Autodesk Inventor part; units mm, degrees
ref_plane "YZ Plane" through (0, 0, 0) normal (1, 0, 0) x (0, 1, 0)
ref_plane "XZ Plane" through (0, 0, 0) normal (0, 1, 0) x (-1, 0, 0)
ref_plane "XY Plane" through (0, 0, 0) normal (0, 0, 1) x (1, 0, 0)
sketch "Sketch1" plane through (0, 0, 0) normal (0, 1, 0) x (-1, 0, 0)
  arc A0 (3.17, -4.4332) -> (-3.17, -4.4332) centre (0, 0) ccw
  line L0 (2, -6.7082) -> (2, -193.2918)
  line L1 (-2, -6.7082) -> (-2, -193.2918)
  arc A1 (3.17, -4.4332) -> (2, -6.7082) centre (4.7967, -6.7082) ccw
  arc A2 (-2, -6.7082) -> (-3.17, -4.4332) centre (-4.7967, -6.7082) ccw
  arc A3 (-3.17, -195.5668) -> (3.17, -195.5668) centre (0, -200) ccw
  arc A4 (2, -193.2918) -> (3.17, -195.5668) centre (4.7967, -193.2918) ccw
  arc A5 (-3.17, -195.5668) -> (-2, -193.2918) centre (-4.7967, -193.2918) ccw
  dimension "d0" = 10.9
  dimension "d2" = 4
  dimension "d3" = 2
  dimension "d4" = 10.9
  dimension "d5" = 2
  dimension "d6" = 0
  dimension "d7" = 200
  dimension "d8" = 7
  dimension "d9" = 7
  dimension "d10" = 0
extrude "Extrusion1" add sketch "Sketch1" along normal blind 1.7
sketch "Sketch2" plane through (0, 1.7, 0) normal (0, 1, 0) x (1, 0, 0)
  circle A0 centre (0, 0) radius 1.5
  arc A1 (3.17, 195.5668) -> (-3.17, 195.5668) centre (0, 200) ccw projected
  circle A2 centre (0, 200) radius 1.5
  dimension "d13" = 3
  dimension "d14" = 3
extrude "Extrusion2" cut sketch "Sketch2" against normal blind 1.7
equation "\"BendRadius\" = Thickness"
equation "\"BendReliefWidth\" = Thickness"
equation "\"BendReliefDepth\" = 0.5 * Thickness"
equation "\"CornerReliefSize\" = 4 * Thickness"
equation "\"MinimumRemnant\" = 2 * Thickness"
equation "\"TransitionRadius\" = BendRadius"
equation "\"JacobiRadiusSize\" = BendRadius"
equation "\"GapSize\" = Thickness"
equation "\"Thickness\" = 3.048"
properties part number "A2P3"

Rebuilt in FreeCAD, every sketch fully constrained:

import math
import FreeCAD as App
import Part
import Sketcher

doc = App.newDocument("Part")
body = doc.addObject("PartDesign::Body", "Body")

sketch1 = doc.addObject("Sketcher::SketchObject", "Sketch")
body.addObject(sketch1)
sketch1.AttachmentSupport = (doc.XZ_Plane, [""])
sketch1.MapMode = "FlatFace"
sketch1.addGeometry(Part.ArcOfCircle(Part.Circle(App.Vector(-4.8, -6.7, 0), App.Vector(0, 0, 1), 2.8), math.radians(0), math.radians(54)), False)
sketch1.addGeometry(Part.ArcOfCircle(Part.Circle(App.Vector(0, 0, 0), App.Vector(0, 0, 1), 5.4), math.radians(-54), math.radians(234)), False)
sketch1.addGeometry(Part.ArcOfCircle(Part.Circle(App.Vector(4.8, -6.7, 0), App.Vector(0, 0, 1), 2.8), math.radians(126), math.radians(180)), False)
sketch1.addGeometry(Part.LineSegment(App.Vector(2, -6.7, 0), App.Vector(2, -193.3, 0)), False)
sketch1.addGeometry(Part.ArcOfCircle(Part.Circle(App.Vector(4.8, -193.3, 0), App.Vector(0, 0, 1), 2.8), math.radians(180), math.radians(234)), False)
sketch1.addGeometry(Part.ArcOfCircle(Part.Circle(App.Vector(0, -200, 0), App.Vector(0, 0, 1), 5.4), math.radians(126), math.radians(414)), False)
sketch1.addGeometry(Part.ArcOfCircle(Part.Circle(App.Vector(-4.8, -193.3, 0), App.Vector(0, 0, 1), 2.8), math.radians(-54), math.radians(0)), False)
sketch1.addGeometry(Part.LineSegment(App.Vector(-2, -193.3, 0), App.Vector(-2, -6.7, 0)), False)
sketch1.addConstraint(Sketcher.Constraint("Tangent", 0, 2, 1, 2))
sketch1.addConstraint(Sketcher.Constraint("Tangent", 1, 1, 2, 1))
sketch1.addConstraint(Sketcher.Constraint("Tangent", 2, 2, 3, 1))
sketch1.addConstraint(Sketcher.Constraint("Tangent", 3, 2, 4, 1))
sketch1.addConstraint(Sketcher.Constraint("Tangent", 4, 2, 5, 2))
sketch1.addConstraint(Sketcher.Constraint("Tangent", 5, 1, 6, 1))
sketch1.addConstraint(Sketcher.Constraint("Tangent", 6, 2, 7, 1))
sketch1.addConstraint(Sketcher.Constraint("Tangent", 7, 2, 0, 1))
sketch1.addConstraint(Sketcher.Constraint("Vertical", 3))
sketch1.addConstraint(Sketcher.Constraint("Vertical", 7))
sketch1.addConstraint(Sketcher.Constraint("Coincident", 1, 3, -1, 1))
sketch1.addConstraint(Sketcher.Constraint("Equal", 0, 2))
sketch1.addConstraint(Sketcher.Constraint("Equal", 2, 4))
sketch1.addConstraint(Sketcher.Constraint("Equal", 1, 5))
sketch1.addConstraint(Sketcher.Constraint("Equal", 4, 6))
sketch1.addConstraint(Sketcher.Constraint("Symmetric", 4, 3, 6, 3, -2))
sketch1.addConstraint(Sketcher.Constraint("Radius", 1, 5.45))
sketch1.addConstraint(Sketcher.Constraint("DistanceY", 5, 3, -1, 1, 200.0))
sketch1.addConstraint(Sketcher.Constraint("DistanceX", -1, 1, 2, 2, 2.0))
sketch1.addConstraint(Sketcher.Constraint("Radius", 0, 2.7967))
pad1 = doc.addObject("PartDesign::Pad", "Pad")
body.addObject(pad1)
pad1.Profile = sketch1
pad1.Length = 1.7
pad1.Reversed = True

sketch2 = doc.addObject("Sketcher::SketchObject", "Sketch001")
body.addObject(sketch2)
sketch2.AttachmentSupport = (doc.XZ_Plane, [""])
sketch2.MapMode = "FlatFace"
sketch2.AttachmentOffset = App.Placement(App.Vector(0, 0, -1.7), App.Rotation())
sketch2.addGeometry(Part.Circle(App.Vector(0, 0, 0), App.Vector(0, 0, 1), 1.5), False)
sketch2.addGeometry(Part.Circle(App.Vector(0, -200, 0), App.Vector(0, 0, 1), 1.5), False)
sketch2.addConstraint(Sketcher.Constraint("Coincident", 0, 3, -1, 1))
sketch2.addConstraint(Sketcher.Constraint("Equal", 0, 1))
sketch2.addConstraint(Sketcher.Constraint("PointOnObject", 1, 3, -2))
sketch2.addConstraint(Sketcher.Constraint("Diameter", 0, 3.0))
sketch2.addConstraint(Sketcher.Constraint("DistanceY", 1, 3, -1, 1, 200.0))
pocket1 = doc.addObject("PartDesign::Pocket", "Pocket")
body.addObject(pocket1)
pocket1.Profile = sketch2
pocket1.Length = 1.7
pocket1.Reversed = True

doc.recompute()
